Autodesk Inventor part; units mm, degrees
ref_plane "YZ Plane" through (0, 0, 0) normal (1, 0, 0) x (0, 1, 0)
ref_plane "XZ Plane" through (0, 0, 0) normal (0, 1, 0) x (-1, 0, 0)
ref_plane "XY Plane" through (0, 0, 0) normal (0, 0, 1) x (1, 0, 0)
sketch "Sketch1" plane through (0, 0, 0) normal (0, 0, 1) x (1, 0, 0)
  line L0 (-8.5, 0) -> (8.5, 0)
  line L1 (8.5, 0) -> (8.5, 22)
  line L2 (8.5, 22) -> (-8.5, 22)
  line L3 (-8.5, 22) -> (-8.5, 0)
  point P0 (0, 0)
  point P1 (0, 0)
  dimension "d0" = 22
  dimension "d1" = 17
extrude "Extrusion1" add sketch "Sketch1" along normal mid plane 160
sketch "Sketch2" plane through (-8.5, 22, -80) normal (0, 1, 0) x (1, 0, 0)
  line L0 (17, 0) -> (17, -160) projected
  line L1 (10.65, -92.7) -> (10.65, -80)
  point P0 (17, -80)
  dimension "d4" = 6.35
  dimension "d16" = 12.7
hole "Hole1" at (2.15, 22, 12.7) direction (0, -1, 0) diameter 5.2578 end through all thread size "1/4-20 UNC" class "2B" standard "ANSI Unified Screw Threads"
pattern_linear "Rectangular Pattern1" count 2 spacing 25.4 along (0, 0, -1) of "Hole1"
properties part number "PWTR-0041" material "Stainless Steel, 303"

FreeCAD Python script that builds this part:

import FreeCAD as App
import Part
import Sketcher

V = App.Vector


def add_polygon(sketch, points):
    """Adds a closed chain of lines whose ends are joined by coincident constraints."""
    first, n = sketch.GeometryCount, len(points)
    for a, b in zip(points, points[1:] + points[:1]):
        sketch.addGeometry(Part.LineSegment(App.Vector(*a, 0), App.Vector(*b, 0)), False)
    for i in range(n):
        sketch.addConstraint(Sketcher.Constraint("Coincident", first + i, 2, first + (i + 1) % n, 1))

doc = App.newDocument("Part")
body = doc.addObject("PartDesign::Body", "Body")

# Sketch on XY plane
sketch1 = body.newObject("Sketcher::SketchObject", "Sketch")
sketch1.AttachmentSupport = (doc.getObject("XY_Plane"), [""])
sketch1.MapMode = "FlatFace"
add_polygon(sketch1, [(-8, 22), (-8, 0), (8, 0), (8, 22)])  # lines 0-3
sketch1.addConstraint(Sketcher.Constraint("Vertical", 0))
sketch1.addConstraint(Sketcher.Constraint("Horizontal", 1))
sketch1.addConstraint(Sketcher.Constraint("Vertical", 2))
sketch1.addConstraint(Sketcher.Constraint("Horizontal", 3))
sketch1.addConstraint(Sketcher.Constraint("Symmetric", 0, 2, 1, 2, -1, 1))
sketch1.addConstraint(Sketcher.Constraint("DistanceX", 1, 1, 1, 2, 17.0))
sketch1.addConstraint(Sketcher.Constraint("DistanceY", 0, 2, 0, 1, 22.0))
pad1 = body.newObject("PartDesign::Pad", "Pad")
pad1.Profile = sketch1
pad1.Length = 160
pad1.Midplane = True

# Sketch on XZ plane
sketch2 = body.newObject("Sketcher::SketchObject", "Sketch001")
sketch2.AttachmentSupport = (doc.getObject("XZ_Plane"), [""])
sketch2.MapMode = "FlatFace"
sketch2.AttachmentOffset = App.Placement(V(0, 0, -22), App.Rotation())
sketch2.addGeometry(Part.Circle(V(2.1, 12.7, 0), V(0, 0, 1), 2.6), False)
sketch2.addConstraint(Sketcher.Constraint("Diameter", 0, 5.2578))
sketch2.addConstraint(Sketcher.Constraint("DistanceY", -1, 1, 0, 3, 12.7))
sketch2.addConstraint(Sketcher.Constraint("DistanceX", -1, 1, 0, 3, 2.15))
doc.recompute()
hole = body.newObject("PartDesign::Hole", "Hole")
hole.Profile = sketch2
hole.ThreadType = "None"
hole.Diameter = 5.2578
hole.DepthType = "ThroughAll"
hole.Reversed = True
doc.recompute()

linearpattern = body.newObject("PartDesign::LinearPattern", "LinearPattern")
linearpattern.Originals = [hole]
linearpattern.Direction = (doc.getObject("Z_Axis"), [""])
linearpattern.Mode = "offset"
linearpattern.Offset = 25.4
linearpattern.Occurrences = 2
linearpattern.Reversed = True
body.Tip = linearpattern

doc.recompute()
